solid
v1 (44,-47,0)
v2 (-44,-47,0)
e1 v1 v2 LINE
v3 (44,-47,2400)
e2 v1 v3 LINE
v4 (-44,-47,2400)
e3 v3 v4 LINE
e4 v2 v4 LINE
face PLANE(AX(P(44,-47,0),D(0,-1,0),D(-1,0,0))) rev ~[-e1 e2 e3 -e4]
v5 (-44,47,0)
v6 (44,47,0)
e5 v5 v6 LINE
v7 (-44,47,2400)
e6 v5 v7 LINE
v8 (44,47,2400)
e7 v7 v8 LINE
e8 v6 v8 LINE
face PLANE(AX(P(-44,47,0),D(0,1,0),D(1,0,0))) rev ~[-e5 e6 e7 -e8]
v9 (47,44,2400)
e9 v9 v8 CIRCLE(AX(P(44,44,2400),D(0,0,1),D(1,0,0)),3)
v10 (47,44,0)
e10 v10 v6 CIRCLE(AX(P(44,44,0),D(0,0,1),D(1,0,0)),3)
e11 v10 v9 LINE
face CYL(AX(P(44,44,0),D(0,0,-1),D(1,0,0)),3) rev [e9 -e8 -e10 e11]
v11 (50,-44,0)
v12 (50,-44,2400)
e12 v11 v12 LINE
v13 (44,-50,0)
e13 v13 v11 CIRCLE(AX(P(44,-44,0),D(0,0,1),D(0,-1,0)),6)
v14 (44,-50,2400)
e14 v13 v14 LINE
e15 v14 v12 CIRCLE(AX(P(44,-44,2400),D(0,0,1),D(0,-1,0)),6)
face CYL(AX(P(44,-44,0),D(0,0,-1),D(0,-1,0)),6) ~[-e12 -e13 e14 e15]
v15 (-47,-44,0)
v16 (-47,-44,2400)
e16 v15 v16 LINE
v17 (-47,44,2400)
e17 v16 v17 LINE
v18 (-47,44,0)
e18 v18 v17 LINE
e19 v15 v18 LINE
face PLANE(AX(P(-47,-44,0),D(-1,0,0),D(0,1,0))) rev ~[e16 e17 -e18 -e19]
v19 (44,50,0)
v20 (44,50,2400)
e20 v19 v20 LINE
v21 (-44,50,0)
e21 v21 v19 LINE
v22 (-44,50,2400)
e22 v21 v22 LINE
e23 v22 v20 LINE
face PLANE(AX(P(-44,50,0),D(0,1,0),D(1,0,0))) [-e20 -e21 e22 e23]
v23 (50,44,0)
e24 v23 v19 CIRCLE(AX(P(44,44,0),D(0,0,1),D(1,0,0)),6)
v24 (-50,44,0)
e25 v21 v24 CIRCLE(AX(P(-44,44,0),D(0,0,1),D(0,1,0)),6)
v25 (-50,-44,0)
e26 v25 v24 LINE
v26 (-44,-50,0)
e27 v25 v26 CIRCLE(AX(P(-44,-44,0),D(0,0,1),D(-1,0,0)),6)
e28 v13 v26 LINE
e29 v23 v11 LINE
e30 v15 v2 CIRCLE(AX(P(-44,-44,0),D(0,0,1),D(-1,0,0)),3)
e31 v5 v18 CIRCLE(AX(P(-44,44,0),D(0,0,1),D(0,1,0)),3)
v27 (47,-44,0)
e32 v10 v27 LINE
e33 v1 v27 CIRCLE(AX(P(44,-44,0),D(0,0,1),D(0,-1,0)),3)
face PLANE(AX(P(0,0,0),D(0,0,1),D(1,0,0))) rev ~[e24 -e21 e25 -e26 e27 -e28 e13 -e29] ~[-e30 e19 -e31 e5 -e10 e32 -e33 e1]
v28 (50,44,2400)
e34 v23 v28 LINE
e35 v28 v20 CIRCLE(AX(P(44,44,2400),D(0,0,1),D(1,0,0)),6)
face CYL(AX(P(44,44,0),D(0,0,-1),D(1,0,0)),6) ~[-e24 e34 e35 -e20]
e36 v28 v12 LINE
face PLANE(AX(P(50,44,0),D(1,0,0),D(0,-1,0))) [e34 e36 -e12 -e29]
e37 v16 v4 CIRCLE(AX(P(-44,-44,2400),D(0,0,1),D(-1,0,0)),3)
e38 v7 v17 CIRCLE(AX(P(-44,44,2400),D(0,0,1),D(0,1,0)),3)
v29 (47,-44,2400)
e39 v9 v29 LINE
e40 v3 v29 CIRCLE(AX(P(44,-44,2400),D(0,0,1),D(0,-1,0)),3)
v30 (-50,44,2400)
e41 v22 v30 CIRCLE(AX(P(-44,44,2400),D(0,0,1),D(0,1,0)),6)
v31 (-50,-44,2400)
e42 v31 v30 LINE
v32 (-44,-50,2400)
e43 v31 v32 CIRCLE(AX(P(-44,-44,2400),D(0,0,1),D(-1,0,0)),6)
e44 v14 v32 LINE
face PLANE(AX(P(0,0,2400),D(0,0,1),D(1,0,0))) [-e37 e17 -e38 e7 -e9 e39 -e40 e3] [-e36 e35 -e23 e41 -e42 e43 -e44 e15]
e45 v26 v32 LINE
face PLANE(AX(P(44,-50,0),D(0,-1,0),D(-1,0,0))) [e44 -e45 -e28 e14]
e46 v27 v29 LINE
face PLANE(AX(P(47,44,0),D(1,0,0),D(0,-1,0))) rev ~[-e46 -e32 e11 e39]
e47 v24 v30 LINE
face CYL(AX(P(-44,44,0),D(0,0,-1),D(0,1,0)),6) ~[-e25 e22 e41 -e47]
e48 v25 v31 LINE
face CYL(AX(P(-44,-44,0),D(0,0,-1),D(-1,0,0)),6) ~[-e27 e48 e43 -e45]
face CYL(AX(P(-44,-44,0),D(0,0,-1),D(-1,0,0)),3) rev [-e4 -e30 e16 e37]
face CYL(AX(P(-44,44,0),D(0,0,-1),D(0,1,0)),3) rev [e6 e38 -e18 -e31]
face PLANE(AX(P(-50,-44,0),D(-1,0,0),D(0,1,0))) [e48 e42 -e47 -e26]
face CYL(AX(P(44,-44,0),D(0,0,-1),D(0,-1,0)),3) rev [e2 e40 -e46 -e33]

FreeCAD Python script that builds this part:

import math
import FreeCAD as App
import Part
import Sketcher

V = App.Vector
Q = App.Units.Quantity

doc = App.newDocument("Part")
body = doc.addObject("PartDesign::Body", "Body")

sketch1 = doc.addObject("Sketcher::SketchObject", "Sketch")
body.addObject(sketch1)
sketch1.AttachmentSupport = (doc.XY_Plane, [""])
sketch1.MapMode = "FlatFace"
sketch1.addGeometry(Part.LineSegment(V(-50, 44, 0), V(-50, -44, 0)), False)
sketch1.addGeometry(Part.ArcOfCircle(Part.Circle(V(-44, -44, 0), V(0, 0, 1), 6), math.radians(180), math.radians(270)), False)
sketch1.addGeometry(Part.LineSegment(V(-44, -50, 0), V(44, -50, 0)), False)
sketch1.addGeometry(Part.ArcOfCircle(Part.Circle(V(44, -44, 0), V(0, 0, 1), 6), math.radians(-90), math.radians(0)), False)
sketch1.addGeometry(Part.LineSegment(V(50, -44, 0), V(50, 44, 0)), False)
sketch1.addGeometry(Part.ArcOfCircle(Part.Circle(V(44, 44, 0), V(0, 0, 1), 6), math.radians(0), math.radians(90)), False)
sketch1.addGeometry(Part.LineSegment(V(44, 50, 0), V(-44, 50, 0)), False)
sketch1.addGeometry(Part.ArcOfCircle(Part.Circle(V(-44, 44, 0), V(0, 0, 1), 6), math.radians(90), math.radians(180)), False)
sketch1.addGeometry(Part.ArcOfCircle(Part.Circle(V(-44, 44, 0), V(0, 0, 1), 3), math.radians(90), math.radians(180)), False)
sketch1.addGeometry(Part.LineSegment(V(-44, 47, 0), V(44, 47, 0)), False)
sketch1.addGeometry(Part.ArcOfCircle(Part.Circle(V(44, 44, 0), V(0, 0, 1), 3), math.radians(0), math.radians(90)), False)
sketch1.addGeometry(Part.LineSegment(V(47, 44, 0), V(47, -44, 0)), False)
sketch1.addGeometry(Part.ArcOfCircle(Part.Circle(V(44, -44, 0), V(0, 0, 1), 3), math.radians(-90), math.radians(0)), False)
sketch1.addGeometry(Part.LineSegment(V(44, -47, 0), V(-44, -47, 0)), False)
sketch1.addGeometry(Part.ArcOfCircle(Part.Circle(V(-44, -44, 0), V(0, 0, 1), 3), math.radians(180), math.radians(270)), False)
sketch1.addGeometry(Part.LineSegment(V(-47, -44, 0), V(-47, 44, 0)), False)
sketch1.addConstraint(Sketcher.Constraint("Tangent", 0, 2, 1, 1))
sketch1.addConstraint(Sketcher.Constraint("Tangent", 1, 2, 2, 1))
sketch1.addConstraint(Sketcher.Constraint("Tangent", 2, 2, 3, 1))
sketch1.addConstraint(Sketcher.Constraint("Tangent", 3, 2, 4, 1))
sketch1.addConstraint(Sketcher.Constraint("Tangent", 4, 2, 5, 1))
sketch1.addConstraint(Sketcher.Constraint("Tangent", 5, 2, 6, 1))
sketch1.addConstraint(Sketcher.Constraint("Tangent", 6, 2, 7, 1))
sketch1.addConstraint(Sketcher.Constraint("Tangent", 7, 2, 0, 1))
sketch1.addConstraint(Sketcher.Constraint("Tangent", 8, 1, 9, 1))
sketch1.addConstraint(Sketcher.Constraint("Tangent", 9, 2, 10, 2))
sketch1.addConstraint(Sketcher.Constraint("Tangent", 10, 1, 11, 1))
sketch1.addConstraint(Sketcher.Constraint("Tangent", 11, 2, 12, 2))
sketch1.addConstraint(Sketcher.Constraint("Tangent", 12, 1, 13, 1))
sketch1.addConstraint(Sketcher.Constraint("Tangent", 13, 2, 14, 2))
sketch1.addConstraint(Sketcher.Constraint("Tangent", 14, 1, 15, 1))
sketch1.addConstraint(Sketcher.Constraint("Tangent", 15, 2, 8, 2))
sketch1.addConstraint(Sketcher.Constraint("Vertical", 0))
sketch1.addConstraint(Sketcher.Constraint("Horizontal", 2))
sketch1.addConstraint(Sketcher.Constraint("Vertical", 4))
sketch1.addConstraint(Sketcher.Constraint("Horizontal", 6))
sketch1.addConstraint(Sketcher.Constraint("Horizontal", 9))
sketch1.addConstraint(Sketcher.Constraint("Vertical", 11))
sketch1.addConstraint(Sketcher.Constraint("Horizontal", 13))
sketch1.addConstraint(Sketcher.Constraint("Vertical", 15))
sketch1.addConstraint(Sketcher.Constraint("Coincident", 8, 3, 7, 3))
sketch1.addConstraint(Sketcher.Constraint("Coincident", 10, 3, 5, 3))
sketch1.addConstraint(Sketcher.Constraint("Coincident", 12, 3, 3, 3))
sketch1.addConstraint(Sketcher.Constraint("Equal", 1, 3))
sketch1.addConstraint(Sketcher.Constraint("Equal", 3, 5))
sketch1.addConstraint(Sketcher.Constraint("Equal", 5, 7))
sketch1.addConstraint(Sketcher.Constraint("Equal", 12, 14))
sketch1.addConstraint(Sketcher.Constraint("Symmetric", 1, 3, 5, 3, -1, 1))
sketch1.addConstraint(Sketcher.Constraint("Equal", 13, 0))
sketch1.addConstraint(Sketcher.Constraint("Radius", 1, Q("6 mm")))
sketch1.addConstraint(Sketcher.Constraint("Radius", 8, Q("3 mm")))
sketch1.addConstraint(Sketcher.Constraint("DistanceX", 0, 2, -1, 1, Q("50 mm")))
pad1 = doc.addObject("PartDesign::Pad", "Pad")
body.addObject(pad1)
pad1.Profile = sketch1
pad1.Length = 2400

doc.recompute()
